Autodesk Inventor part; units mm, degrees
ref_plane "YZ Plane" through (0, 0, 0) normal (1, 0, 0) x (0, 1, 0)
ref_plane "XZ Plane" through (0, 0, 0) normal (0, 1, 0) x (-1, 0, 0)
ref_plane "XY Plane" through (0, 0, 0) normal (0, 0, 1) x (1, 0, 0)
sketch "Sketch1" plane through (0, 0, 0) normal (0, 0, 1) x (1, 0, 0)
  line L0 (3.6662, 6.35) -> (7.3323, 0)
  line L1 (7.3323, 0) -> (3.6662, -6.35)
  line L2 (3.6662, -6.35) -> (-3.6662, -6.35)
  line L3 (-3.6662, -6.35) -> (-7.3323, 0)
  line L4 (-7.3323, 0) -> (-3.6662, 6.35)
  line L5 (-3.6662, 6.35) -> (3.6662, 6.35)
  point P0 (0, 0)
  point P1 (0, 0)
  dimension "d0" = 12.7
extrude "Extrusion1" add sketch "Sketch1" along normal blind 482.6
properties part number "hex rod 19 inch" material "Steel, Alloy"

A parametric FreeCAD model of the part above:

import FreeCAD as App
import Part
import Sketcher
Q = App.Units.Quantity


def add_polygon(sketch, points):
    """Adds a closed chain of lines whose ends are joined by coincident constraints."""
    first, n = sketch.GeometryCount, len(points)
    for a, b in zip(points, points[1:] + points[:1]):
        sketch.addGeometry(Part.LineSegment(App.Vector(*a, 0), App.Vector(*b, 0)), False)
    for i in range(n):
        sketch.addConstraint(Sketcher.Constraint("Coincident", first + i, 2, first + (i + 1) % n, 1))

doc = App.newDocument("Part")
body = doc.addObject("PartDesign::Body", "Body")

sketch1 = doc.addObject("Sketcher::SketchObject", "Sketch")
body.addObject(sketch1)
sketch1.AttachmentSupport = (doc.XY_Plane, [""])
sketch1.MapMode = "FlatFace"
add_polygon(sketch1, [(7.3323, 0), (3.6662, 6.35), (-3.6662, 6.35), (-7.3323, 0), (-3.6662, -6.35), (3.6662, -6.35)])
sketch1.addConstraint(Sketcher.Constraint("Horizontal", 1))
sketch1.addConstraint(Sketcher.Constraint("Horizontal", 4))
sketch1.addConstraint(Sketcher.Constraint("Symmetric", 0, 2, 3, 2, -1, 1))
sketch1.addConstraint(Sketcher.Constraint("Symmetric", 2, 2, 5, 2, -1, 1))
sketch1.addConstraint(Sketcher.Constraint("PointOnObject", 2, 2, -1))
sketch1.addConstraint(Sketcher.Constraint("Parallel", 2, 5))
sketch1.addConstraint(Sketcher.Constraint("Vertical", 1, 2, 3, 2))
sketch1.addConstraint(Sketcher.Constraint("DistanceY", 3, 2, 1, 2, Q("0.5 in")))
sketch1.addConstraint(Sketcher.Constraint("Angle", 0, Q("119.9995 deg")))
sketch1.addConstraint(Sketcher.Constraint("DistanceX", 2, 2, 0, 2, Q("0.433 in")))
pad1 = doc.addObject("PartDesign::Pad", "Pad")
body.addObject(pad1)
pad1.Profile = sketch1
pad1.Length = Q("19 in")

doc.recompute()
